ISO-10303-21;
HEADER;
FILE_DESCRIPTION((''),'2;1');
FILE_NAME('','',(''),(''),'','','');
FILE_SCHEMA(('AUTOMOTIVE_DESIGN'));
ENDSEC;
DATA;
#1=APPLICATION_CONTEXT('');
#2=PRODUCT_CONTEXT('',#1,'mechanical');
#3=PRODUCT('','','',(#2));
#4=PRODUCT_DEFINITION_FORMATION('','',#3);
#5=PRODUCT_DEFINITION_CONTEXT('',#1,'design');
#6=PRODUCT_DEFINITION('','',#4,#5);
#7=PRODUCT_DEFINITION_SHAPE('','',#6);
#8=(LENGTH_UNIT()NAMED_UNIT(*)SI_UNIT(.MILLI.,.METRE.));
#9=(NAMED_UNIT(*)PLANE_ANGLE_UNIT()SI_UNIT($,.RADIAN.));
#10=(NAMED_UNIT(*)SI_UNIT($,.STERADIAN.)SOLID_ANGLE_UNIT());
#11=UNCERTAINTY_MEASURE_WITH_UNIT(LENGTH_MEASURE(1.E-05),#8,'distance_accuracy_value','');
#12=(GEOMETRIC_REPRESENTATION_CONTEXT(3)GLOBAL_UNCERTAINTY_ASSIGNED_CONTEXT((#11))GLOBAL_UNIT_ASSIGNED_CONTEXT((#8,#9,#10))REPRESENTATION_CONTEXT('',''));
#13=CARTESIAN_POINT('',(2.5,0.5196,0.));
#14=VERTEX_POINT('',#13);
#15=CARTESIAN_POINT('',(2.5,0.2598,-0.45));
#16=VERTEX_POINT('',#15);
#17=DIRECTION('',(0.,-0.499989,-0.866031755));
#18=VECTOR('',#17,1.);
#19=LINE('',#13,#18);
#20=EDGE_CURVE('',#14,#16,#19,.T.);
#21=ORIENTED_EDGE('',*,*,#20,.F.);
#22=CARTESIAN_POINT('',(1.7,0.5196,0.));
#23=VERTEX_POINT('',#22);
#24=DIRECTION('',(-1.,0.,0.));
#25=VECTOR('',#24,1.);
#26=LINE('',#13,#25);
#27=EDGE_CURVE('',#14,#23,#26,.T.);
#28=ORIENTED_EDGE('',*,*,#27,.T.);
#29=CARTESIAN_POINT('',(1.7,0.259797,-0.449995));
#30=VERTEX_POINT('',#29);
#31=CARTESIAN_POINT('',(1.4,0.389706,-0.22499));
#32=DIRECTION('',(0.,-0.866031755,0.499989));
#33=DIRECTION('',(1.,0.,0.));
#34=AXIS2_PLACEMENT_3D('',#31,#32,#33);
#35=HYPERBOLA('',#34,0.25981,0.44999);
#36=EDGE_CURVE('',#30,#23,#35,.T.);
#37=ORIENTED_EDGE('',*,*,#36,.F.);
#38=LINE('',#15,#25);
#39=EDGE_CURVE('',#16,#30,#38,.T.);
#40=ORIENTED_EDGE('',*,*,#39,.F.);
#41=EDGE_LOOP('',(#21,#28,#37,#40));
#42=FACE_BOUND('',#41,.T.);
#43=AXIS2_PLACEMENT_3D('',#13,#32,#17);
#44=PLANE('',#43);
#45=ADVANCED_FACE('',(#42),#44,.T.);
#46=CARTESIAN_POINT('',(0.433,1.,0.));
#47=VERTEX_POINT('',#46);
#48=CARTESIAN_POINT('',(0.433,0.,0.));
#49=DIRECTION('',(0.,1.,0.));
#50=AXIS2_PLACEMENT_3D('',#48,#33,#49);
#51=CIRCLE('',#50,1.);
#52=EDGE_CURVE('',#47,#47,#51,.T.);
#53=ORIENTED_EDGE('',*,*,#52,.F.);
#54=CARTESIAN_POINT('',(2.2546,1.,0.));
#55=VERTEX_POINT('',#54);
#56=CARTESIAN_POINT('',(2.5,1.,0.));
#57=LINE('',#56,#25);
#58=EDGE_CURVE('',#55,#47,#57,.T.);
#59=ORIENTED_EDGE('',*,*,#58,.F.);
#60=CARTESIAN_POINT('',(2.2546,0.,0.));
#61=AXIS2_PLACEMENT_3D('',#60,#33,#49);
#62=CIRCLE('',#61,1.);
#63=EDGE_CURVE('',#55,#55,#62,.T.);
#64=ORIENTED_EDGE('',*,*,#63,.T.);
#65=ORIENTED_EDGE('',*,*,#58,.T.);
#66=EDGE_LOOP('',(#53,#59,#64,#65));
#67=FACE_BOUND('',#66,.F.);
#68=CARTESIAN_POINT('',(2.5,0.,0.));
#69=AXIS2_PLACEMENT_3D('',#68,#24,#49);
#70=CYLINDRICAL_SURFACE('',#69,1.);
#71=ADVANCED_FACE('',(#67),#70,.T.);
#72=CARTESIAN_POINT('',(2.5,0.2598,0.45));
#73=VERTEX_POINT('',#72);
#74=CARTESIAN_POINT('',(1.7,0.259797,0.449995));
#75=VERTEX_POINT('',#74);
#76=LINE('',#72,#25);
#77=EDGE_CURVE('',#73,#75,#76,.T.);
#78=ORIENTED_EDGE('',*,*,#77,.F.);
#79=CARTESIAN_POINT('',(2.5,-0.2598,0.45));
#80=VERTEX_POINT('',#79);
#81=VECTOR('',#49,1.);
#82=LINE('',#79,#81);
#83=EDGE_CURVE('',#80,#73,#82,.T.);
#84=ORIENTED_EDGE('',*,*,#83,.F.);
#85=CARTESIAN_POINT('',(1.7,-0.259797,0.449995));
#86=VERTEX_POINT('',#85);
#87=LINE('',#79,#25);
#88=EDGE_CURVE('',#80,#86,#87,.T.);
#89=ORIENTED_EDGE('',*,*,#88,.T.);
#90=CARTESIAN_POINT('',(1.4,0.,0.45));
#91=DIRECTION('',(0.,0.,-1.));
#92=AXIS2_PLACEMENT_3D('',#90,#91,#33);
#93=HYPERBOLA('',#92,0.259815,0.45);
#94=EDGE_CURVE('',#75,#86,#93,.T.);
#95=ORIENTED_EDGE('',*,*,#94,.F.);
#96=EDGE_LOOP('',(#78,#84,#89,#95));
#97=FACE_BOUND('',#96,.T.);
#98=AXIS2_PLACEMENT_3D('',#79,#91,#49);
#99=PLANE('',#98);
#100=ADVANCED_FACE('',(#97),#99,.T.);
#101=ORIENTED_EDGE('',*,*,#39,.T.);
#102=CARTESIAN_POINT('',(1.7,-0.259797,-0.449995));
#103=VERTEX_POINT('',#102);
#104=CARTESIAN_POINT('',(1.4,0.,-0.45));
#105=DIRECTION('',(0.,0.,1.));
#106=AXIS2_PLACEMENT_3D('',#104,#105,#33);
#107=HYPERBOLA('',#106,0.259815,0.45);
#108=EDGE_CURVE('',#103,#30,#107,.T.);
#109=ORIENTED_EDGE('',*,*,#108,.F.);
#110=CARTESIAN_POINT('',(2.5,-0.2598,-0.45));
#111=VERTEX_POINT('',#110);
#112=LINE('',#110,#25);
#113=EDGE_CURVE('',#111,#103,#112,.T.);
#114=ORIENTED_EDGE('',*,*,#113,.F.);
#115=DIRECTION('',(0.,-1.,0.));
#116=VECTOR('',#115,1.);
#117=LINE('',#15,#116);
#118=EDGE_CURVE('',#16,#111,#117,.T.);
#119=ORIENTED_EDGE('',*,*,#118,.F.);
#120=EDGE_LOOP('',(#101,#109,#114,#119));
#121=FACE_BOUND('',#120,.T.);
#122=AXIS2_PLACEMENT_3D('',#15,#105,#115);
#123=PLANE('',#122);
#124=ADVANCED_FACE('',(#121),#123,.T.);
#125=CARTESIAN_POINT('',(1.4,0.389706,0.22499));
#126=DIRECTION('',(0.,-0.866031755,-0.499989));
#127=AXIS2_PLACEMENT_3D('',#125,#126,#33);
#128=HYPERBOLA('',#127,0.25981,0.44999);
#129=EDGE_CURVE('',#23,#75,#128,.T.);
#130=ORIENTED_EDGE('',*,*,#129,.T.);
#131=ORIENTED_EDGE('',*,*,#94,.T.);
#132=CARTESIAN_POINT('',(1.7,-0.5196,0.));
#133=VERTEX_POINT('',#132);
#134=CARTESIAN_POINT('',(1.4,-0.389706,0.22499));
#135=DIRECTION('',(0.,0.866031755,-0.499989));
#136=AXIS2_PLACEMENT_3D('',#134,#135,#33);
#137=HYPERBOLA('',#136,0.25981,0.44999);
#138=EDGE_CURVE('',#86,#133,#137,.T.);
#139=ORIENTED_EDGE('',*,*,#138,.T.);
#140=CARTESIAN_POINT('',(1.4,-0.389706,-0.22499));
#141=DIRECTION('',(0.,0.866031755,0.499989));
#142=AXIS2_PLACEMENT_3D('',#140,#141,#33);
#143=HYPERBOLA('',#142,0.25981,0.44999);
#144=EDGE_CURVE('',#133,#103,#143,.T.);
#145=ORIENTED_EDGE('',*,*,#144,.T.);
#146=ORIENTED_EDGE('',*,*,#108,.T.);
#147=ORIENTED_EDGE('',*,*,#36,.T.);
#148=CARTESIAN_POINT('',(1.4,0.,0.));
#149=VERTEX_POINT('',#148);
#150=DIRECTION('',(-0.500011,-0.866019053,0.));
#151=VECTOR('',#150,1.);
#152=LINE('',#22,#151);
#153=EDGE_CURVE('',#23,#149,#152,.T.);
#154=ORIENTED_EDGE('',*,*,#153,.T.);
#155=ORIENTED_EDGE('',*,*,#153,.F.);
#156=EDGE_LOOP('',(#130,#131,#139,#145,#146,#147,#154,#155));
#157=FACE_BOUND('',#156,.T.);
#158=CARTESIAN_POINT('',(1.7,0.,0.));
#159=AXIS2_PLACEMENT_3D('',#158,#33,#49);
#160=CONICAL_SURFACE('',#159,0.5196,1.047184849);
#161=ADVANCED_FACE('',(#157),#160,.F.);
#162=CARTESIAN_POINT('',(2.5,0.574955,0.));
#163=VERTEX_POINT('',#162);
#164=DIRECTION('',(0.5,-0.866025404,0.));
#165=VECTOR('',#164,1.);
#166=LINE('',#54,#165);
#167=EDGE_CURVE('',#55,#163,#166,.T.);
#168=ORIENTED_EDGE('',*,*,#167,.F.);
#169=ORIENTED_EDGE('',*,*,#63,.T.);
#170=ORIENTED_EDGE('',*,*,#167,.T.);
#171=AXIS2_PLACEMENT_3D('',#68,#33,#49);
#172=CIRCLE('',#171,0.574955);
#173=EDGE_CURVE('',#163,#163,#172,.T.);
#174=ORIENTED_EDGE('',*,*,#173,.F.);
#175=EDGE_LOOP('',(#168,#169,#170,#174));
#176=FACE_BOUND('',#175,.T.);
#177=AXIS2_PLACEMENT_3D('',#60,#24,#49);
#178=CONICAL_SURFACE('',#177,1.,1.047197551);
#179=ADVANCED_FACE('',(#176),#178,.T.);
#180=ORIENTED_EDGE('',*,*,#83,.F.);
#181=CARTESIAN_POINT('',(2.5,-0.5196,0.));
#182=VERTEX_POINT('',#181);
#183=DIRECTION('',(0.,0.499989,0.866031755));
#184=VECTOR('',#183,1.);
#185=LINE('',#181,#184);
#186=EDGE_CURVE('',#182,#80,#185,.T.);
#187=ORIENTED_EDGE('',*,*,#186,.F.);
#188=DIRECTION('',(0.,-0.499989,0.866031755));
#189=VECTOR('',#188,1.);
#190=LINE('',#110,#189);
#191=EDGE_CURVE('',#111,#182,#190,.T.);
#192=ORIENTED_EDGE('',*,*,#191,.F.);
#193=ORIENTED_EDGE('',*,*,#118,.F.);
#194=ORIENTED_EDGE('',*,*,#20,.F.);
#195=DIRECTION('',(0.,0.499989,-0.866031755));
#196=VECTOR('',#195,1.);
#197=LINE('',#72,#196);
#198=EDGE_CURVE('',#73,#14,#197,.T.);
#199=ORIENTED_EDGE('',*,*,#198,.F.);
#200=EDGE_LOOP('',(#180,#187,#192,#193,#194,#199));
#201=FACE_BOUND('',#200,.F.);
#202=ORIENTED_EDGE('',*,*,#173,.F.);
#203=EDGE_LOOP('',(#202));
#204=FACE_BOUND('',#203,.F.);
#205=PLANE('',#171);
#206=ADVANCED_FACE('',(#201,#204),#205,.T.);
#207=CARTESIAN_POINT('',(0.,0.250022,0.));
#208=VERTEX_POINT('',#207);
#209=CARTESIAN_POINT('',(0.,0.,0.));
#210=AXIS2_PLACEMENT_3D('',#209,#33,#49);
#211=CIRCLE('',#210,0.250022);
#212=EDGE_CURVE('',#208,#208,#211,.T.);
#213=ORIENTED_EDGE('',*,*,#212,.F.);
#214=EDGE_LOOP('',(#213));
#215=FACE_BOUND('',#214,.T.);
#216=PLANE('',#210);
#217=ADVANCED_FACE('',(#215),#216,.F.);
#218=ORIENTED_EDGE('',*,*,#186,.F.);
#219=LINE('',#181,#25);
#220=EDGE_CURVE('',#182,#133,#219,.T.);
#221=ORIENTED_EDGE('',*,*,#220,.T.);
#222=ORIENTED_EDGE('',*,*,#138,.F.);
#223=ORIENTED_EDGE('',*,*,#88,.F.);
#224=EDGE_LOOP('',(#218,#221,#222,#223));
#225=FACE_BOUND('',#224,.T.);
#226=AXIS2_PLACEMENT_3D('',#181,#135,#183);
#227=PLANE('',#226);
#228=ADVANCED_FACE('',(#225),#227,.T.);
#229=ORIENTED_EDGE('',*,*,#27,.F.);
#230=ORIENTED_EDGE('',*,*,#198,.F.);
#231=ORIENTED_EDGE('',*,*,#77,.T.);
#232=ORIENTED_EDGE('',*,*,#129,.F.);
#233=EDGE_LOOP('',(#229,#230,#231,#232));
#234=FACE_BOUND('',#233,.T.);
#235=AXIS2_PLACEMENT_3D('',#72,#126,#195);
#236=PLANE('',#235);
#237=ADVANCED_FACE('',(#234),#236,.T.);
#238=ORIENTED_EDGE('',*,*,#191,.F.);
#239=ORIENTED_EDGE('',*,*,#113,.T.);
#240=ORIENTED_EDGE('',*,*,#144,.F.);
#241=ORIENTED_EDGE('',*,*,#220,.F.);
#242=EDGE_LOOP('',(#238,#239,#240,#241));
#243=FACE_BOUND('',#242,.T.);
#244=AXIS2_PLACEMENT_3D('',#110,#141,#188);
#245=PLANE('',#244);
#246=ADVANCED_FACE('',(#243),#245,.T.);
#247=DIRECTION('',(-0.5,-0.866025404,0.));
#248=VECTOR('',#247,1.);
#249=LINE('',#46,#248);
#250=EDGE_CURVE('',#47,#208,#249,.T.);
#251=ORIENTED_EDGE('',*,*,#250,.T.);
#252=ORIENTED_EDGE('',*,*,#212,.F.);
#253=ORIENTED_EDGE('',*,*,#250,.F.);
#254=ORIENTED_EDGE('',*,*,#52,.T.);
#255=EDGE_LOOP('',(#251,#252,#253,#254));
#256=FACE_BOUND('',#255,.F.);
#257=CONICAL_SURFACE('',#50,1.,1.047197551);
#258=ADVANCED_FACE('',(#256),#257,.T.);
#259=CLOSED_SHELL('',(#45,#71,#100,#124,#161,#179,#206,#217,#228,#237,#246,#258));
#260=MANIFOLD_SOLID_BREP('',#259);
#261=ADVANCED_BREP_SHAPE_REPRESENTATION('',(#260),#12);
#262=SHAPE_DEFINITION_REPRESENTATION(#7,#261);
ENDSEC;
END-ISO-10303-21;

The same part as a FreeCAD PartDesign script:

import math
import FreeCAD as App
import Part
import Sketcher

V = App.Vector
Q = App.Units.Quantity


def edges_at(feature, points):
    """Names of the edges that pass closest to the given points."""
    edges = feature.Shape.Edges
    near = lambda p: min(range(len(edges)), key=lambda i: edges[i].distToShape(Part.Vertex(*p))[0])
    return sorted({f"Edge{near(p) + 1}" for p in points})

doc = App.newDocument("Part")
params = doc.addObject("Spreadsheet::Sheet", "Params")
for row, (alias, value) in enumerate([
    ("sketch1_width", "0.8 mm"),
    ("sketch1_width2", "2.5 mm"),
    ("sketch1_height", "1 mm"),
    ("sketch1_width3", "1.4 mm"),
    ("revolution_angle", "360 deg"),
    ("chamfer_size", "0.433 mm"),
    ("chamfer2_size", "0.2454 mm"),
], start=1):
    params.set(f"A{row}", alias)
    params.set(f"B{row}", "=" + value)
    params.setAlias(f"B{row}", alias)

body = doc.addObject("PartDesign::Body", "Body")

# Sketch on XY plane
sketch1 = body.newObject("Sketcher::SketchObject", "Sketch")
sketch1.AttachmentSupport = (doc.getObject("XY_Plane"), [""])
sketch1.MapMode = "FlatFace"
sketch1.addGeometry(Part.LineSegment(V(0, 1, 0), V(0, 0, 0)), False)
sketch1.addGeometry(Part.LineSegment(V(0, 0, 0), V(1.4, 0, 0)), False)
sketch1.addGeometry(Part.LineSegment(V(1.4, 0, 0), V(1.7, 0.52, 0)), False)
sketch1.addGeometry(Part.LineSegment(V(1.7, 0.52, 0), V(2.5, 0.52, 0)), False)
sketch1.addGeometry(Part.LineSegment(V(2.5, 0.52, 0), V(2.5, 1, 0)), False)
sketch1.addGeometry(Part.LineSegment(V(2.5, 1, 0), V(0, 1, 0)), False)
sketch1.addConstraint(Sketcher.Constraint("Coincident", 0, 2, 1, 1))
sketch1.addConstraint(Sketcher.Constraint("Coincident", 1, 2, 2, 1))
sketch1.addConstraint(Sketcher.Constraint("Coincident", 2, 2, 3, 1))
sketch1.addConstraint(Sketcher.Constraint("Coincident", 3, 2, 4, 1))
sketch1.addConstraint(Sketcher.Constraint("Coincident", 4, 2, 5, 1))
sketch1.addConstraint(Sketcher.Constraint("Coincident", 5, 2, 0, 1))
sketch1.addConstraint(Sketcher.Constraint("Vertical", 0))
sketch1.addConstraint(Sketcher.Constraint("Horizontal", 1))
sketch1.addConstraint(Sketcher.Constraint("Horizontal", 3))
sketch1.addConstraint(Sketcher.Constraint("Vertical", 4))
sketch1.addConstraint(Sketcher.Constraint("Horizontal", 5))
sketch1.addConstraint(Sketcher.Constraint("Coincident", 0, 2, -1, 1))
sketch1.addConstraint(Sketcher.Constraint("DistanceX", 3, 1, 3, 2, 0.8))
sketch1.addConstraint(Sketcher.Constraint("DistanceX", 5, 2, 5, 1, 2.5))
sketch1.addConstraint(Sketcher.Constraint("DistanceY", 0, 2, 0, 1, 1.0))
sketch1.addConstraint(Sketcher.Constraint("Angle", 2, Q("59.9993 deg")))
sketch1.addConstraint(Sketcher.Constraint("DistanceX", 1, 1, 1, 2, 1.4))
sketch1.setExpression("Constraints[12]", "Params.sketch1_width")
sketch1.setExpression("Constraints[13]", "Params.sketch1_width2")
sketch1.setExpression("Constraints[14]", "Params.sketch1_height")
sketch1.setExpression("Constraints[16]", "Params.sketch1_width3")
revolution = body.newObject("PartDesign::Revolution", "Revolution")
revolution.Profile = sketch1
revolution.ReferenceAxis = (sketch1, ["H_Axis"])
revolution.setExpression("Angle", "Params.revolution_angle")

# Sketch on YZ plane
sketch2 = body.newObject("Sketcher::SketchObject", "Sketch001")
sketch2.AttachmentSupport = (doc.getObject("YZ_Plane"), [""])
sketch2.MapMode = "FlatFace"
sketch2.AttachmentOffset = App.Placement(V(0, 0, 2.5), App.Rotation())
sketch2.addGeometry(Part.LineSegment(V(0.3, 0.5, 0), V(0.5, 0, 0)), False)
sketch2.addGeometry(Part.ArcOfCircle(Part.Circle(V(0, 0, 0), V(0, 0, 1), 0.5), math.radians(0), math.radians(60)), False)
sketch2.addGeometry(Part.ArcOfCircle(Part.Circle(V(0, 0, 0), V(0, 0, 1), 0.5), math.radians(-60), math.radians(0)), False)
sketch2.addGeometry(Part.LineSegment(V(0.5, 0, 0), V(0.3, -0.5, 0)), False)
sketch2.addGeometry(Part.LineSegment(V(-0.3, 0.5, 0), V(0.3, 0.5, 0)), False)
sketch2.addGeometry(Part.ArcOfCircle(Part.Circle(V(0, 0, 0), V(0, 0, 1), 0.5), math.radians(60), math.radians(120)), False)
sketch2.addGeometry(Part.ArcOfCircle(Part.Circle(V(0, 0, 0), V(0, 0, 1), 0.5), math.radians(-120), math.radians(-60)), False)
sketch2.addGeometry(Part.LineSegment(V(-0.3, -0.5, 0), V(0.3, -0.5, 0)), False)
sketch2.addGeometry(Part.LineSegment(V(-0.5, 0, 0), V(-0.3, 0.5, 0)), False)
sketch2.addGeometry(Part.ArcOfCircle(Part.Circle(V(0, 0, 0), V(0, 0, 1), 0.5), math.radians(120), math.radians(180)), False)
sketch2.addGeometry(Part.ArcOfCircle(Part.Circle(V(0, 0, 0), V(0, 0, 1), 0.5), math.radians(180), math.radians(240)), False)
sketch2.addGeometry(Part.LineSegment(V(-0.5, 0, 0), V(-0.3, -0.5, 0)), False)
sketch2.addConstraint(Sketcher.Constraint("Coincident", 0, 1, 1, 2))
sketch2.addConstraint(Sketcher.Constraint("Coincident", 1, 1, 0, 2))
sketch2.addConstraint(Sketcher.Constraint("Coincident", 2, 1, 3, 2))
sketch2.addConstraint(Sketcher.Constraint("Coincident", 3, 1, 2, 2))
sketch2.addConstraint(Sketcher.Constraint("Coincident", 4, 1, 5, 2))
sketch2.addConstraint(Sketcher.Constraint("Coincident", 5, 1, 4, 2))
sketch2.addConstraint(Sketcher.Constraint("Coincident", 6, 1, 7, 1))
sketch2.addConstraint(Sketcher.Constraint("Coincident", 7, 2, 6, 2))
sketch2.addConstraint(Sketcher.Constraint("Coincident", 8, 1, 9, 2))
sketch2.addConstraint(Sketcher.Constraint("Coincident", 9, 1, 8, 2))
sketch2.addConstraint(Sketcher.Constraint("Coincident", 10, 1, 11, 1))
sketch2.addConstraint(Sketcher.Constraint("Coincident", 11, 2, 10, 2))
sketch2.addConstraint(Sketcher.Constraint("Horizontal", 4))
sketch2.addConstraint(Sketcher.Constraint("Horizontal", 7))
sketch2.addConstraint(Sketcher.Constraint("Coincident", 1, 3, -1, 1))
sketch2.addConstraint(Sketcher.Constraint("Coincident", 2, 3, -1, 1))
sketch2.addConstraint(Sketcher.Constraint("Coincident", 5, 3, -1, 1))
sketch2.addConstraint(Sketcher.Constraint("Coincident", 6, 3, -1, 1))
sketch2.addConstraint(Sketcher.Constraint("Coincident", 9, 3, -1, 1))
sketch2.addConstraint(Sketcher.Constraint("Coincident", 10, 3, -1, 1))
sketch2.addConstraint(Sketcher.Constraint("Coincident", 3, 1, 1, 1))
sketch2.addConstraint(Sketcher.Constraint("Coincident", 5, 1, 0, 1))
sketch2.addConstraint(Sketcher.Constraint("Coincident", 7, 2, 2, 1))
sketch2.addConstraint(Sketcher.Constraint("Coincident", 9, 1, 4, 1))
sketch2.addConstraint(Sketcher.Constraint("Coincident", 10, 1, 8, 1))
sketch2.addConstraint(Sketcher.Constraint("PointOnObject", 1, 1, -1))
sketch2.addConstraint(Sketcher.Constraint("PointOnObject", 8, 1, -1))
sketch2.addConstraint(Sketcher.Constraint("Parallel", 3, 8))
sketch2.addConstraint(Sketcher.Constraint("Parallel", 0, 11))
sketch2.addConstraint(Sketcher.Constraint("Angle", 0, Q("-60.0007 deg")))
sketch2.addConstraint(Sketcher.Constraint("Radius", 1, 0.5196))
pad1 = body.newObject("PartDesign::Pad", "Pad")
pad1.Profile = sketch2
pad1.Type = "UpToFirst"
pad1.Reversed = True
doc.recompute()

chamfer = body.newObject("PartDesign::Chamfer", "Chamfer")
chamfer.Base = (pad1, edges_at(pad1, [(0, -1, 0)]))
chamfer.ChamferType = "Distance and Angle"
chamfer.setExpression("Size", "Params.chamfer_size")
chamfer.Angle = 60
chamfer.FlipDirection = True
doc.recompute()

chamfer2 = body.newObject("PartDesign::Chamfer", "Chamfer001")
chamfer2.Base = (chamfer, edges_at(chamfer, [(2.5, -1, 0)]))
chamfer2.ChamferType = "Distance and Angle"
chamfer2.setExpression("Size", "Params.chamfer2_size")
chamfer2.Angle = 60

doc.recompute()
